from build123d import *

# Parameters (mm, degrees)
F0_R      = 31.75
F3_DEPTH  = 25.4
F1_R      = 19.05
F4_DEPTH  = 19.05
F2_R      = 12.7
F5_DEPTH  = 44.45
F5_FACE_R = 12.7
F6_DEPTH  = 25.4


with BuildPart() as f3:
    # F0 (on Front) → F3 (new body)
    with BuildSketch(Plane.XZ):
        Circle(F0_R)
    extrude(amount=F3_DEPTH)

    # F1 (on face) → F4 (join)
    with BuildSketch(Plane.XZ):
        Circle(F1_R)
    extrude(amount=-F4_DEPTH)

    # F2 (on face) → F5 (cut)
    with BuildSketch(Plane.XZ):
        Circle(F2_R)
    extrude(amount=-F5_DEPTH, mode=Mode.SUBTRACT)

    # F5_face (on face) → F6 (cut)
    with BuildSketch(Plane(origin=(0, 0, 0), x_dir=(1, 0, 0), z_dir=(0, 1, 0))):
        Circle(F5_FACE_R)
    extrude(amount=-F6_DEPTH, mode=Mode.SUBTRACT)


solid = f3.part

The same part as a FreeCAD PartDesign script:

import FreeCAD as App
import Part
import Sketcher
from FreeCAD import Vector
Q = App.Units.Quantity

doc = App.newDocument("Part")
params = doc.addObject("Spreadsheet::Sheet", "Params")
for row, (alias, value) in enumerate([
    ("sketch1_diameter", "2.5 in"),
    ("pad1_length", "1 in"),
    ("sketch2_diameter", "1.5 in"),
    ("pad2_length", "0.75 in"),
    ("sketch3_diameter", "1 in"),
    ("pocket1_length", "1.75 in"),
    ("sketch4_diameter", "1 in"),
    ("pocket2_length", "1 in"),
], start=1):
    params.set(f"A{row}", alias)
    params.set(f"B{row}", "=" + value)
    params.setAlias(f"B{row}", alias)

body = doc.addObject("PartDesign::Body", "Body")

sketch1 = body.newObject("Sketcher::SketchObject", "Sketch")
sketch1.AttachmentSupport = (doc.getObject("XZ_Plane"), [""])
sketch1.MapMode = "FlatFace"
sketch1.addGeometry(Part.Circle(Vector(0, 0, 0), Vector(0, 0, 1), 32), False)
sketch1.addConstraint([
    Sketcher.Constraint("Coincident", 0, 3, -1, 1),
    Sketcher.Constraint("Diameter", 0, Q("2.5 in")),
])
sketch1.setExpression("Constraints[1]", "Params.sketch1_diameter")
pad1 = body.newObject("PartDesign::Pad", "Pad")
pad1.Profile = sketch1
pad1.setExpression("Length", "Params.pad1_length")

sketch2 = body.newObject("Sketcher::SketchObject", "Sketch001")
sketch2.AttachmentSupport = (doc.getObject("XZ_Plane"), [""])
sketch2.MapMode = "FlatFace"
sketch2.addGeometry(Part.Circle(Vector(0, 0, 0), Vector(0, 0, 1), 19), False)
sketch2.addConstraint([
    Sketcher.Constraint("Coincident", 0, 3, -1, 1),
    Sketcher.Constraint("Diameter", 0, Q("1.5 in")),
])
sketch2.setExpression("Constraints[1]", "Params.sketch2_diameter")
pad2 = body.newObject("PartDesign::Pad", "Pad001")
pad2.Profile = sketch2
pad2.setExpression("Length", "Params.pad2_length")
pad2.Reversed = True

sketch3 = body.newObject("Sketcher::SketchObject", "Sketch002")
sketch3.AttachmentSupport = (doc.getObject("XZ_Plane"), [""])
sketch3.MapMode = "FlatFace"
sketch3.addGeometry(Part.Circle(Vector(0, 0, 0), Vector(0, 0, 1), 13), False)
sketch3.addConstraint([
    Sketcher.Constraint("Coincident", 0, 3, -1, 1),
    Sketcher.Constraint("Diameter", 0, Q("1 in")),
])
sketch3.setExpression("Constraints[1]", "Params.sketch3_diameter")
pocket1 = body.newObject("PartDesign::Pocket", "Pocket")
pocket1.Profile = sketch3
pocket1.setExpression("Length", "Params.pocket1_length")

sketch4 = body.newObject("Sketcher::SketchObject", "Sketch003")
sketch4.AttachmentSupport = (doc.getObject("XZ_Plane"), [""])
sketch4.MapMode = "FlatFace"
sketch4.addGeometry(Part.Circle(Vector(0, 0, 0), Vector(0, 0, 1), 13), False)
sketch4.addConstraint([
    Sketcher.Constraint("Coincident", 0, 3, -1, 1),
    Sketcher.Constraint("Diameter", 0, Q("1 in")),
])
sketch4.setExpression("Constraints[1]", "Params.sketch4_diameter")
pocket2 = body.newObject("PartDesign::Pocket", "Pocket001")
pocket2.Profile = sketch4
pocket2.setExpression("Length", "Params.pocket2_length")
pocket2.Reversed = True

doc.recompute()
